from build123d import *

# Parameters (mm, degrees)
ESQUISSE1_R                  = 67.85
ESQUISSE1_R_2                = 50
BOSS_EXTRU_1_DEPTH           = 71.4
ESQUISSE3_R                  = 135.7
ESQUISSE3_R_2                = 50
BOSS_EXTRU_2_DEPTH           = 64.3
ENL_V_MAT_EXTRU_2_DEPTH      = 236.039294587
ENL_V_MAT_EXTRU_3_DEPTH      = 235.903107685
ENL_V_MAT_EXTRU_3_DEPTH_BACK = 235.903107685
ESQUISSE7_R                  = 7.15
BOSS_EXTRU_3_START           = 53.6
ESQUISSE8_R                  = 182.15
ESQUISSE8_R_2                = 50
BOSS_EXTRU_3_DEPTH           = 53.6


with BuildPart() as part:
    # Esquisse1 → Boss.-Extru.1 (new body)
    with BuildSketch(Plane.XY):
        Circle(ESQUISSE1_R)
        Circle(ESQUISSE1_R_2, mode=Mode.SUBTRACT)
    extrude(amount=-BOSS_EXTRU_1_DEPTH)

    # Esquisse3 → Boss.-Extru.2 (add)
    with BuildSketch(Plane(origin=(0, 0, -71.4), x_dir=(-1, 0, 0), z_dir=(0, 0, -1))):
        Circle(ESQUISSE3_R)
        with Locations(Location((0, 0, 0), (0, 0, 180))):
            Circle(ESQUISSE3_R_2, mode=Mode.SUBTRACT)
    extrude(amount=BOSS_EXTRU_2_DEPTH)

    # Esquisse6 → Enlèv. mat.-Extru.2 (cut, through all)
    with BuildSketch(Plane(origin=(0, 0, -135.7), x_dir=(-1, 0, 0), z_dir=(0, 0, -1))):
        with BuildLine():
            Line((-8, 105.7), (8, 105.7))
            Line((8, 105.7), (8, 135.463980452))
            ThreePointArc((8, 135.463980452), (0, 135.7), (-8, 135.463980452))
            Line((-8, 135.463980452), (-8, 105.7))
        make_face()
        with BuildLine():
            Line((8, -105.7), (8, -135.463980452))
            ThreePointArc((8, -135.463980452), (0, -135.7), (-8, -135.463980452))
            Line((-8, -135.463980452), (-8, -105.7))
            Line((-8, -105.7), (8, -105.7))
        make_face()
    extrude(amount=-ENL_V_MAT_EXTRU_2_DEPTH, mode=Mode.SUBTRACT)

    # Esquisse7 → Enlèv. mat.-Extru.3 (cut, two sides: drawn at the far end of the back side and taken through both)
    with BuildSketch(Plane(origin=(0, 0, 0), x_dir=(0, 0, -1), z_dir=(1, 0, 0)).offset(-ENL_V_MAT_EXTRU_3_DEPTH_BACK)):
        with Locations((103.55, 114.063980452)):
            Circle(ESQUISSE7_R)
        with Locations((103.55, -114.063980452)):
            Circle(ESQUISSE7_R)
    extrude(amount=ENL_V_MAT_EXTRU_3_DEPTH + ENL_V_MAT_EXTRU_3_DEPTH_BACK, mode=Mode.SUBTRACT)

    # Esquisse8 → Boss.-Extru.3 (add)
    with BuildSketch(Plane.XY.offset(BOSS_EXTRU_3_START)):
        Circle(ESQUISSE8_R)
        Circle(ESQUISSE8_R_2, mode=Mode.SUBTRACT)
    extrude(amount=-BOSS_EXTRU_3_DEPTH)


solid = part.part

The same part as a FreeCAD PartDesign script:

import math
import FreeCAD as App
import Part
import Sketcher

V = App.Vector

doc = App.newDocument("Part")
params = doc.addObject("Spreadsheet::Sheet", "Params")
for row, (alias, value) in enumerate([
    ("sketch1_diameter", "100 mm"),
    ("sketch1_diameter2", "135.7 mm"),
    ("pad1_length", "71.4 mm"),
    ("sketch2_diameter", "100 mm"),
    ("sketch2_diameter2", "271.4 mm"),
    ("pad2_length", "64.3 mm"),
    ("sketch3_radius", "135.7 mm"),
    ("sketch3_width", "16 mm"),
    ("sketch4_diameter", "14.3 mm"),
    ("sketch5_diameter", "100 mm"),
    ("sketch5_diameter2", "364.3 mm"),
    ("pad3_length", "53.6 mm"),
], start=1):
    params.set(f"A{row}", alias)
    params.set(f"B{row}", "=" + value)
    params.setAlias(f"B{row}", alias)

body = doc.addObject("PartDesign::Body", "Body")

# Sketch on XY plane
sketch1 = doc.addObject("Sketcher::SketchObject", "Sketch")
body.addObject(sketch1)
sketch1.AttachmentSupport = (doc.XY_Plane, [""])
sketch1.MapMode = "FlatFace"
sketch1.addGeometry(Part.Circle(V(0, 0, 0), V(0, 0, 1), 68), False)
sketch1.addGeometry(Part.Circle(V(0, 0, 0), V(0, 0, 1), 50), False)
sketch1.addConstraint(Sketcher.Constraint("Coincident", 0, 3, -1, 1))
sketch1.addConstraint(Sketcher.Constraint("Coincident", 1, 3, -1, 1))
sketch1.addConstraint(Sketcher.Constraint("Diameter", 1, 100.0))
sketch1.addConstraint(Sketcher.Constraint("Diameter", 0, 135.7))
sketch1.setExpression("Constraints[2]", "Params.sketch1_diameter")
sketch1.setExpression("Constraints[3]", "Params.sketch1_diameter2")
pad1 = doc.addObject("PartDesign::Pad", "Pad")
body.addObject(pad1)
pad1.Profile = sketch1
pad1.setExpression("Length", "Params.pad1_length")
pad1.Reversed = True

# Sketch on XY plane
sketch2 = doc.addObject("Sketcher::SketchObject", "Sketch001")
body.addObject(sketch2)
sketch2.AttachmentSupport = (doc.XY_Plane, [""])
sketch2.MapMode = "FlatFace"
sketch2.AttachmentOffset = App.Placement(V(0, 0, -71.4), App.Rotation())
sketch2.addGeometry(Part.Circle(V(0, 0, 0), V(0, 0, 1), 136), False)
sketch2.addGeometry(Part.Circle(V(0, 0, 0), V(0, 0, 1), 50), False)
sketch2.addConstraint(Sketcher.Constraint("Coincident", 0, 3, -1, 1))
sketch2.addConstraint(Sketcher.Constraint("Coincident", 1, 3, -1, 1))
sketch2.addConstraint(Sketcher.Constraint("Diameter", 1, 100.0))
sketch2.addConstraint(Sketcher.Constraint("Diameter", 0, 271.4))
sketch2.setExpression("Constraints[2]", "Params.sketch2_diameter")
sketch2.setExpression("Constraints[3]", "Params.sketch2_diameter2")
pad2 = doc.addObject("PartDesign::Pad", "Pad001")
body.addObject(pad2)
pad2.Profile = sketch2
pad2.setExpression("Length", "Params.pad2_length")
pad2.Reversed = True

# Sketch on XY plane
sketch3 = doc.addObject("Sketcher::SketchObject", "Sketch002")
body.addObject(sketch3)
sketch3.AttachmentSupport = (doc.XY_Plane, [""])
sketch3.MapMode = "FlatFace"
sketch3.AttachmentOffset = App.Placement(V(0, 0, -135.7), App.Rotation())
sketch3.addGeometry(Part.LineSegment(V(8, 106, 0), V(-8, 106, 0)), False)
sketch3.addGeometry(Part.LineSegment(V(-8, 106, 0), V(-8, 135, 0)), False)
sketch3.addGeometry(Part.ArcOfCircle(Part.Circle(V(0, 0, 0), V(0, 0, 1), 136), math.radians(86.62), math.radians(93.38)), False)
sketch3.addGeometry(Part.LineSegment(V(8, 135, 0), V(8, 106, 0)), False)
sketch3.addGeometry(Part.LineSegment(V(-8, -135, 0), V(-8, -106, 0)), False)
sketch3.addGeometry(Part.LineSegment(V(-8, -106, 0), V(8, -106, 0)), False)
sketch3.addGeometry(Part.LineSegment(V(8, -106, 0), V(8, -135, 0)), False)
sketch3.addGeometry(Part.ArcOfCircle(Part.Circle(V(0, 0, 0), V(0, 0, 1), 136), math.radians(-93.38), math.radians(-86.62)), False)
sketch3.addConstraint(Sketcher.Constraint("Coincident", 0, 2, 1, 1))
sketch3.addConstraint(Sketcher.Constraint("Coincident", 1, 2, 2, 2))
sketch3.addConstraint(Sketcher.Constraint("Coincident", 2, 1, 3, 1))
sketch3.addConstraint(Sketcher.Constraint("Coincident", 3, 2, 0, 1))
sketch3.addConstraint(Sketcher.Constraint("Coincident", 4, 2, 5, 1))
sketch3.addConstraint(Sketcher.Constraint("Coincident", 5, 2, 6, 1))
sketch3.addConstraint(Sketcher.Constraint("Coincident", 6, 2, 7, 2))
sketch3.addConstraint(Sketcher.Constraint("Coincident", 7, 1, 4, 1))
sketch3.addConstraint(Sketcher.Constraint("Horizontal", 0))
sketch3.addConstraint(Sketcher.Constraint("Vertical", 1))
sketch3.addConstraint(Sketcher.Constraint("Vertical", 3))
sketch3.addConstraint(Sketcher.Constraint("Vertical", 4))
sketch3.addConstraint(Sketcher.Constraint("Horizontal", 5))
sketch3.addConstraint(Sketcher.Constraint("Vertical", 6))
sketch3.addConstraint(Sketcher.Constraint("Coincident", 2, 3, -1, 1))
sketch3.addConstraint(Sketcher.Constraint("Coincident", 7, 3, -1, 1))
sketch3.addConstraint(Sketcher.Constraint("Equal", 2, 7))
sketch3.addConstraint(Sketcher.Constraint("Symmetric", 3, 2, 4, 2, -1, 1))
sketch3.addConstraint(Sketcher.Constraint("Horizontal", 1, 2, 2, 1))
sketch3.addConstraint(Sketcher.Constraint("Horizontal", 6, 2, 7, 1))
sketch3.addConstraint(Sketcher.Constraint("Radius", 2, 135.7))
sketch3.addConstraint(Sketcher.Constraint("DistanceX", 0, 2, 0, 1, 16.0))
sketch3.addConstraint(Sketcher.Constraint("DistanceY", -1, 1, 0, 2, 105.7))
sketch3.setExpression("Constraints[20]", "Params.sketch3_radius")
sketch3.setExpression("Constraints[21]", "Params.sketch3_width")
pocket1 = doc.addObject("PartDesign::Pocket", "Pocket")
body.addObject(pocket1)
pocket1.Profile = sketch3
pocket1.Type = "ThroughAll"
pocket1.Reversed = True

# Sketch on YZ plane
sketch4 = doc.addObject("Sketcher::SketchObject", "Sketch003")
body.addObject(sketch4)
sketch4.AttachmentSupport = (doc.YZ_Plane, [""])
sketch4.MapMode = "FlatFace"
sketch4.addGeometry(Part.Circle(V(114, -104, 0), V(0, 0, 1), 7), False)
sketch4.addGeometry(Part.Circle(V(-114, -104, 0), V(0, 0, 1), 7), False)
sketch4.addConstraint(Sketcher.Constraint("Equal", 0, 1))
sketch4.addConstraint(Sketcher.Constraint("Symmetric", 0, 3, 1, 3, -2))
sketch4.addConstraint(Sketcher.Constraint("Diameter", 0, 14.3))
sketch4.addConstraint(Sketcher.Constraint("DistanceY", 0, 3, -1, 1, 103.55))
sketch4.addConstraint(Sketcher.Constraint("DistanceX", -1, 1, 0, 3, 114.06398))
sketch4.setExpression("Constraints[2]", "Params.sketch4_diameter")
pocket2 = doc.addObject("PartDesign::Pocket", "Pocket001")
body.addObject(pocket2)
pocket2.Profile = sketch4
pocket2.Type = "ThroughAll"
pocket2.Midplane = True

# Sketch on XY plane
sketch5 = doc.addObject("Sketcher::SketchObject", "Sketch004")
body.addObject(sketch5)
sketch5.AttachmentSupport = (doc.XY_Plane, [""])
sketch5.MapMode = "FlatFace"
sketch5.AttachmentOffset = App.Placement(V(0, 0, 53.6), App.Rotation())
sketch5.addGeometry(Part.Circle(V(0, 0, 0), V(0, 0, 1), 182), False)
sketch5.addGeometry(Part.Circle(V(0, 0, 0), V(0, 0, 1), 50), False)
sketch5.addConstraint(Sketcher.Constraint("Coincident", 0, 3, -1, 1))
sketch5.addConstraint(Sketcher.Constraint("Coincident", 1, 3, -1, 1))
sketch5.addConstraint(Sketcher.Constraint("Diameter", 1, 100.0))
sketch5.addConstraint(Sketcher.Constraint("Diameter", 0, 364.3))
sketch5.setExpression("Constraints[2]", "Params.sketch5_diameter")
sketch5.setExpression("Constraints[3]", "Params.sketch5_diameter2")
pad3 = doc.addObject("PartDesign::Pad", "Pad002")
body.addObject(pad3)
pad3.Profile = sketch5
pad3.setExpression("Length", "Params.pad3_length")
pad3.Reversed = True

doc.recompute()
